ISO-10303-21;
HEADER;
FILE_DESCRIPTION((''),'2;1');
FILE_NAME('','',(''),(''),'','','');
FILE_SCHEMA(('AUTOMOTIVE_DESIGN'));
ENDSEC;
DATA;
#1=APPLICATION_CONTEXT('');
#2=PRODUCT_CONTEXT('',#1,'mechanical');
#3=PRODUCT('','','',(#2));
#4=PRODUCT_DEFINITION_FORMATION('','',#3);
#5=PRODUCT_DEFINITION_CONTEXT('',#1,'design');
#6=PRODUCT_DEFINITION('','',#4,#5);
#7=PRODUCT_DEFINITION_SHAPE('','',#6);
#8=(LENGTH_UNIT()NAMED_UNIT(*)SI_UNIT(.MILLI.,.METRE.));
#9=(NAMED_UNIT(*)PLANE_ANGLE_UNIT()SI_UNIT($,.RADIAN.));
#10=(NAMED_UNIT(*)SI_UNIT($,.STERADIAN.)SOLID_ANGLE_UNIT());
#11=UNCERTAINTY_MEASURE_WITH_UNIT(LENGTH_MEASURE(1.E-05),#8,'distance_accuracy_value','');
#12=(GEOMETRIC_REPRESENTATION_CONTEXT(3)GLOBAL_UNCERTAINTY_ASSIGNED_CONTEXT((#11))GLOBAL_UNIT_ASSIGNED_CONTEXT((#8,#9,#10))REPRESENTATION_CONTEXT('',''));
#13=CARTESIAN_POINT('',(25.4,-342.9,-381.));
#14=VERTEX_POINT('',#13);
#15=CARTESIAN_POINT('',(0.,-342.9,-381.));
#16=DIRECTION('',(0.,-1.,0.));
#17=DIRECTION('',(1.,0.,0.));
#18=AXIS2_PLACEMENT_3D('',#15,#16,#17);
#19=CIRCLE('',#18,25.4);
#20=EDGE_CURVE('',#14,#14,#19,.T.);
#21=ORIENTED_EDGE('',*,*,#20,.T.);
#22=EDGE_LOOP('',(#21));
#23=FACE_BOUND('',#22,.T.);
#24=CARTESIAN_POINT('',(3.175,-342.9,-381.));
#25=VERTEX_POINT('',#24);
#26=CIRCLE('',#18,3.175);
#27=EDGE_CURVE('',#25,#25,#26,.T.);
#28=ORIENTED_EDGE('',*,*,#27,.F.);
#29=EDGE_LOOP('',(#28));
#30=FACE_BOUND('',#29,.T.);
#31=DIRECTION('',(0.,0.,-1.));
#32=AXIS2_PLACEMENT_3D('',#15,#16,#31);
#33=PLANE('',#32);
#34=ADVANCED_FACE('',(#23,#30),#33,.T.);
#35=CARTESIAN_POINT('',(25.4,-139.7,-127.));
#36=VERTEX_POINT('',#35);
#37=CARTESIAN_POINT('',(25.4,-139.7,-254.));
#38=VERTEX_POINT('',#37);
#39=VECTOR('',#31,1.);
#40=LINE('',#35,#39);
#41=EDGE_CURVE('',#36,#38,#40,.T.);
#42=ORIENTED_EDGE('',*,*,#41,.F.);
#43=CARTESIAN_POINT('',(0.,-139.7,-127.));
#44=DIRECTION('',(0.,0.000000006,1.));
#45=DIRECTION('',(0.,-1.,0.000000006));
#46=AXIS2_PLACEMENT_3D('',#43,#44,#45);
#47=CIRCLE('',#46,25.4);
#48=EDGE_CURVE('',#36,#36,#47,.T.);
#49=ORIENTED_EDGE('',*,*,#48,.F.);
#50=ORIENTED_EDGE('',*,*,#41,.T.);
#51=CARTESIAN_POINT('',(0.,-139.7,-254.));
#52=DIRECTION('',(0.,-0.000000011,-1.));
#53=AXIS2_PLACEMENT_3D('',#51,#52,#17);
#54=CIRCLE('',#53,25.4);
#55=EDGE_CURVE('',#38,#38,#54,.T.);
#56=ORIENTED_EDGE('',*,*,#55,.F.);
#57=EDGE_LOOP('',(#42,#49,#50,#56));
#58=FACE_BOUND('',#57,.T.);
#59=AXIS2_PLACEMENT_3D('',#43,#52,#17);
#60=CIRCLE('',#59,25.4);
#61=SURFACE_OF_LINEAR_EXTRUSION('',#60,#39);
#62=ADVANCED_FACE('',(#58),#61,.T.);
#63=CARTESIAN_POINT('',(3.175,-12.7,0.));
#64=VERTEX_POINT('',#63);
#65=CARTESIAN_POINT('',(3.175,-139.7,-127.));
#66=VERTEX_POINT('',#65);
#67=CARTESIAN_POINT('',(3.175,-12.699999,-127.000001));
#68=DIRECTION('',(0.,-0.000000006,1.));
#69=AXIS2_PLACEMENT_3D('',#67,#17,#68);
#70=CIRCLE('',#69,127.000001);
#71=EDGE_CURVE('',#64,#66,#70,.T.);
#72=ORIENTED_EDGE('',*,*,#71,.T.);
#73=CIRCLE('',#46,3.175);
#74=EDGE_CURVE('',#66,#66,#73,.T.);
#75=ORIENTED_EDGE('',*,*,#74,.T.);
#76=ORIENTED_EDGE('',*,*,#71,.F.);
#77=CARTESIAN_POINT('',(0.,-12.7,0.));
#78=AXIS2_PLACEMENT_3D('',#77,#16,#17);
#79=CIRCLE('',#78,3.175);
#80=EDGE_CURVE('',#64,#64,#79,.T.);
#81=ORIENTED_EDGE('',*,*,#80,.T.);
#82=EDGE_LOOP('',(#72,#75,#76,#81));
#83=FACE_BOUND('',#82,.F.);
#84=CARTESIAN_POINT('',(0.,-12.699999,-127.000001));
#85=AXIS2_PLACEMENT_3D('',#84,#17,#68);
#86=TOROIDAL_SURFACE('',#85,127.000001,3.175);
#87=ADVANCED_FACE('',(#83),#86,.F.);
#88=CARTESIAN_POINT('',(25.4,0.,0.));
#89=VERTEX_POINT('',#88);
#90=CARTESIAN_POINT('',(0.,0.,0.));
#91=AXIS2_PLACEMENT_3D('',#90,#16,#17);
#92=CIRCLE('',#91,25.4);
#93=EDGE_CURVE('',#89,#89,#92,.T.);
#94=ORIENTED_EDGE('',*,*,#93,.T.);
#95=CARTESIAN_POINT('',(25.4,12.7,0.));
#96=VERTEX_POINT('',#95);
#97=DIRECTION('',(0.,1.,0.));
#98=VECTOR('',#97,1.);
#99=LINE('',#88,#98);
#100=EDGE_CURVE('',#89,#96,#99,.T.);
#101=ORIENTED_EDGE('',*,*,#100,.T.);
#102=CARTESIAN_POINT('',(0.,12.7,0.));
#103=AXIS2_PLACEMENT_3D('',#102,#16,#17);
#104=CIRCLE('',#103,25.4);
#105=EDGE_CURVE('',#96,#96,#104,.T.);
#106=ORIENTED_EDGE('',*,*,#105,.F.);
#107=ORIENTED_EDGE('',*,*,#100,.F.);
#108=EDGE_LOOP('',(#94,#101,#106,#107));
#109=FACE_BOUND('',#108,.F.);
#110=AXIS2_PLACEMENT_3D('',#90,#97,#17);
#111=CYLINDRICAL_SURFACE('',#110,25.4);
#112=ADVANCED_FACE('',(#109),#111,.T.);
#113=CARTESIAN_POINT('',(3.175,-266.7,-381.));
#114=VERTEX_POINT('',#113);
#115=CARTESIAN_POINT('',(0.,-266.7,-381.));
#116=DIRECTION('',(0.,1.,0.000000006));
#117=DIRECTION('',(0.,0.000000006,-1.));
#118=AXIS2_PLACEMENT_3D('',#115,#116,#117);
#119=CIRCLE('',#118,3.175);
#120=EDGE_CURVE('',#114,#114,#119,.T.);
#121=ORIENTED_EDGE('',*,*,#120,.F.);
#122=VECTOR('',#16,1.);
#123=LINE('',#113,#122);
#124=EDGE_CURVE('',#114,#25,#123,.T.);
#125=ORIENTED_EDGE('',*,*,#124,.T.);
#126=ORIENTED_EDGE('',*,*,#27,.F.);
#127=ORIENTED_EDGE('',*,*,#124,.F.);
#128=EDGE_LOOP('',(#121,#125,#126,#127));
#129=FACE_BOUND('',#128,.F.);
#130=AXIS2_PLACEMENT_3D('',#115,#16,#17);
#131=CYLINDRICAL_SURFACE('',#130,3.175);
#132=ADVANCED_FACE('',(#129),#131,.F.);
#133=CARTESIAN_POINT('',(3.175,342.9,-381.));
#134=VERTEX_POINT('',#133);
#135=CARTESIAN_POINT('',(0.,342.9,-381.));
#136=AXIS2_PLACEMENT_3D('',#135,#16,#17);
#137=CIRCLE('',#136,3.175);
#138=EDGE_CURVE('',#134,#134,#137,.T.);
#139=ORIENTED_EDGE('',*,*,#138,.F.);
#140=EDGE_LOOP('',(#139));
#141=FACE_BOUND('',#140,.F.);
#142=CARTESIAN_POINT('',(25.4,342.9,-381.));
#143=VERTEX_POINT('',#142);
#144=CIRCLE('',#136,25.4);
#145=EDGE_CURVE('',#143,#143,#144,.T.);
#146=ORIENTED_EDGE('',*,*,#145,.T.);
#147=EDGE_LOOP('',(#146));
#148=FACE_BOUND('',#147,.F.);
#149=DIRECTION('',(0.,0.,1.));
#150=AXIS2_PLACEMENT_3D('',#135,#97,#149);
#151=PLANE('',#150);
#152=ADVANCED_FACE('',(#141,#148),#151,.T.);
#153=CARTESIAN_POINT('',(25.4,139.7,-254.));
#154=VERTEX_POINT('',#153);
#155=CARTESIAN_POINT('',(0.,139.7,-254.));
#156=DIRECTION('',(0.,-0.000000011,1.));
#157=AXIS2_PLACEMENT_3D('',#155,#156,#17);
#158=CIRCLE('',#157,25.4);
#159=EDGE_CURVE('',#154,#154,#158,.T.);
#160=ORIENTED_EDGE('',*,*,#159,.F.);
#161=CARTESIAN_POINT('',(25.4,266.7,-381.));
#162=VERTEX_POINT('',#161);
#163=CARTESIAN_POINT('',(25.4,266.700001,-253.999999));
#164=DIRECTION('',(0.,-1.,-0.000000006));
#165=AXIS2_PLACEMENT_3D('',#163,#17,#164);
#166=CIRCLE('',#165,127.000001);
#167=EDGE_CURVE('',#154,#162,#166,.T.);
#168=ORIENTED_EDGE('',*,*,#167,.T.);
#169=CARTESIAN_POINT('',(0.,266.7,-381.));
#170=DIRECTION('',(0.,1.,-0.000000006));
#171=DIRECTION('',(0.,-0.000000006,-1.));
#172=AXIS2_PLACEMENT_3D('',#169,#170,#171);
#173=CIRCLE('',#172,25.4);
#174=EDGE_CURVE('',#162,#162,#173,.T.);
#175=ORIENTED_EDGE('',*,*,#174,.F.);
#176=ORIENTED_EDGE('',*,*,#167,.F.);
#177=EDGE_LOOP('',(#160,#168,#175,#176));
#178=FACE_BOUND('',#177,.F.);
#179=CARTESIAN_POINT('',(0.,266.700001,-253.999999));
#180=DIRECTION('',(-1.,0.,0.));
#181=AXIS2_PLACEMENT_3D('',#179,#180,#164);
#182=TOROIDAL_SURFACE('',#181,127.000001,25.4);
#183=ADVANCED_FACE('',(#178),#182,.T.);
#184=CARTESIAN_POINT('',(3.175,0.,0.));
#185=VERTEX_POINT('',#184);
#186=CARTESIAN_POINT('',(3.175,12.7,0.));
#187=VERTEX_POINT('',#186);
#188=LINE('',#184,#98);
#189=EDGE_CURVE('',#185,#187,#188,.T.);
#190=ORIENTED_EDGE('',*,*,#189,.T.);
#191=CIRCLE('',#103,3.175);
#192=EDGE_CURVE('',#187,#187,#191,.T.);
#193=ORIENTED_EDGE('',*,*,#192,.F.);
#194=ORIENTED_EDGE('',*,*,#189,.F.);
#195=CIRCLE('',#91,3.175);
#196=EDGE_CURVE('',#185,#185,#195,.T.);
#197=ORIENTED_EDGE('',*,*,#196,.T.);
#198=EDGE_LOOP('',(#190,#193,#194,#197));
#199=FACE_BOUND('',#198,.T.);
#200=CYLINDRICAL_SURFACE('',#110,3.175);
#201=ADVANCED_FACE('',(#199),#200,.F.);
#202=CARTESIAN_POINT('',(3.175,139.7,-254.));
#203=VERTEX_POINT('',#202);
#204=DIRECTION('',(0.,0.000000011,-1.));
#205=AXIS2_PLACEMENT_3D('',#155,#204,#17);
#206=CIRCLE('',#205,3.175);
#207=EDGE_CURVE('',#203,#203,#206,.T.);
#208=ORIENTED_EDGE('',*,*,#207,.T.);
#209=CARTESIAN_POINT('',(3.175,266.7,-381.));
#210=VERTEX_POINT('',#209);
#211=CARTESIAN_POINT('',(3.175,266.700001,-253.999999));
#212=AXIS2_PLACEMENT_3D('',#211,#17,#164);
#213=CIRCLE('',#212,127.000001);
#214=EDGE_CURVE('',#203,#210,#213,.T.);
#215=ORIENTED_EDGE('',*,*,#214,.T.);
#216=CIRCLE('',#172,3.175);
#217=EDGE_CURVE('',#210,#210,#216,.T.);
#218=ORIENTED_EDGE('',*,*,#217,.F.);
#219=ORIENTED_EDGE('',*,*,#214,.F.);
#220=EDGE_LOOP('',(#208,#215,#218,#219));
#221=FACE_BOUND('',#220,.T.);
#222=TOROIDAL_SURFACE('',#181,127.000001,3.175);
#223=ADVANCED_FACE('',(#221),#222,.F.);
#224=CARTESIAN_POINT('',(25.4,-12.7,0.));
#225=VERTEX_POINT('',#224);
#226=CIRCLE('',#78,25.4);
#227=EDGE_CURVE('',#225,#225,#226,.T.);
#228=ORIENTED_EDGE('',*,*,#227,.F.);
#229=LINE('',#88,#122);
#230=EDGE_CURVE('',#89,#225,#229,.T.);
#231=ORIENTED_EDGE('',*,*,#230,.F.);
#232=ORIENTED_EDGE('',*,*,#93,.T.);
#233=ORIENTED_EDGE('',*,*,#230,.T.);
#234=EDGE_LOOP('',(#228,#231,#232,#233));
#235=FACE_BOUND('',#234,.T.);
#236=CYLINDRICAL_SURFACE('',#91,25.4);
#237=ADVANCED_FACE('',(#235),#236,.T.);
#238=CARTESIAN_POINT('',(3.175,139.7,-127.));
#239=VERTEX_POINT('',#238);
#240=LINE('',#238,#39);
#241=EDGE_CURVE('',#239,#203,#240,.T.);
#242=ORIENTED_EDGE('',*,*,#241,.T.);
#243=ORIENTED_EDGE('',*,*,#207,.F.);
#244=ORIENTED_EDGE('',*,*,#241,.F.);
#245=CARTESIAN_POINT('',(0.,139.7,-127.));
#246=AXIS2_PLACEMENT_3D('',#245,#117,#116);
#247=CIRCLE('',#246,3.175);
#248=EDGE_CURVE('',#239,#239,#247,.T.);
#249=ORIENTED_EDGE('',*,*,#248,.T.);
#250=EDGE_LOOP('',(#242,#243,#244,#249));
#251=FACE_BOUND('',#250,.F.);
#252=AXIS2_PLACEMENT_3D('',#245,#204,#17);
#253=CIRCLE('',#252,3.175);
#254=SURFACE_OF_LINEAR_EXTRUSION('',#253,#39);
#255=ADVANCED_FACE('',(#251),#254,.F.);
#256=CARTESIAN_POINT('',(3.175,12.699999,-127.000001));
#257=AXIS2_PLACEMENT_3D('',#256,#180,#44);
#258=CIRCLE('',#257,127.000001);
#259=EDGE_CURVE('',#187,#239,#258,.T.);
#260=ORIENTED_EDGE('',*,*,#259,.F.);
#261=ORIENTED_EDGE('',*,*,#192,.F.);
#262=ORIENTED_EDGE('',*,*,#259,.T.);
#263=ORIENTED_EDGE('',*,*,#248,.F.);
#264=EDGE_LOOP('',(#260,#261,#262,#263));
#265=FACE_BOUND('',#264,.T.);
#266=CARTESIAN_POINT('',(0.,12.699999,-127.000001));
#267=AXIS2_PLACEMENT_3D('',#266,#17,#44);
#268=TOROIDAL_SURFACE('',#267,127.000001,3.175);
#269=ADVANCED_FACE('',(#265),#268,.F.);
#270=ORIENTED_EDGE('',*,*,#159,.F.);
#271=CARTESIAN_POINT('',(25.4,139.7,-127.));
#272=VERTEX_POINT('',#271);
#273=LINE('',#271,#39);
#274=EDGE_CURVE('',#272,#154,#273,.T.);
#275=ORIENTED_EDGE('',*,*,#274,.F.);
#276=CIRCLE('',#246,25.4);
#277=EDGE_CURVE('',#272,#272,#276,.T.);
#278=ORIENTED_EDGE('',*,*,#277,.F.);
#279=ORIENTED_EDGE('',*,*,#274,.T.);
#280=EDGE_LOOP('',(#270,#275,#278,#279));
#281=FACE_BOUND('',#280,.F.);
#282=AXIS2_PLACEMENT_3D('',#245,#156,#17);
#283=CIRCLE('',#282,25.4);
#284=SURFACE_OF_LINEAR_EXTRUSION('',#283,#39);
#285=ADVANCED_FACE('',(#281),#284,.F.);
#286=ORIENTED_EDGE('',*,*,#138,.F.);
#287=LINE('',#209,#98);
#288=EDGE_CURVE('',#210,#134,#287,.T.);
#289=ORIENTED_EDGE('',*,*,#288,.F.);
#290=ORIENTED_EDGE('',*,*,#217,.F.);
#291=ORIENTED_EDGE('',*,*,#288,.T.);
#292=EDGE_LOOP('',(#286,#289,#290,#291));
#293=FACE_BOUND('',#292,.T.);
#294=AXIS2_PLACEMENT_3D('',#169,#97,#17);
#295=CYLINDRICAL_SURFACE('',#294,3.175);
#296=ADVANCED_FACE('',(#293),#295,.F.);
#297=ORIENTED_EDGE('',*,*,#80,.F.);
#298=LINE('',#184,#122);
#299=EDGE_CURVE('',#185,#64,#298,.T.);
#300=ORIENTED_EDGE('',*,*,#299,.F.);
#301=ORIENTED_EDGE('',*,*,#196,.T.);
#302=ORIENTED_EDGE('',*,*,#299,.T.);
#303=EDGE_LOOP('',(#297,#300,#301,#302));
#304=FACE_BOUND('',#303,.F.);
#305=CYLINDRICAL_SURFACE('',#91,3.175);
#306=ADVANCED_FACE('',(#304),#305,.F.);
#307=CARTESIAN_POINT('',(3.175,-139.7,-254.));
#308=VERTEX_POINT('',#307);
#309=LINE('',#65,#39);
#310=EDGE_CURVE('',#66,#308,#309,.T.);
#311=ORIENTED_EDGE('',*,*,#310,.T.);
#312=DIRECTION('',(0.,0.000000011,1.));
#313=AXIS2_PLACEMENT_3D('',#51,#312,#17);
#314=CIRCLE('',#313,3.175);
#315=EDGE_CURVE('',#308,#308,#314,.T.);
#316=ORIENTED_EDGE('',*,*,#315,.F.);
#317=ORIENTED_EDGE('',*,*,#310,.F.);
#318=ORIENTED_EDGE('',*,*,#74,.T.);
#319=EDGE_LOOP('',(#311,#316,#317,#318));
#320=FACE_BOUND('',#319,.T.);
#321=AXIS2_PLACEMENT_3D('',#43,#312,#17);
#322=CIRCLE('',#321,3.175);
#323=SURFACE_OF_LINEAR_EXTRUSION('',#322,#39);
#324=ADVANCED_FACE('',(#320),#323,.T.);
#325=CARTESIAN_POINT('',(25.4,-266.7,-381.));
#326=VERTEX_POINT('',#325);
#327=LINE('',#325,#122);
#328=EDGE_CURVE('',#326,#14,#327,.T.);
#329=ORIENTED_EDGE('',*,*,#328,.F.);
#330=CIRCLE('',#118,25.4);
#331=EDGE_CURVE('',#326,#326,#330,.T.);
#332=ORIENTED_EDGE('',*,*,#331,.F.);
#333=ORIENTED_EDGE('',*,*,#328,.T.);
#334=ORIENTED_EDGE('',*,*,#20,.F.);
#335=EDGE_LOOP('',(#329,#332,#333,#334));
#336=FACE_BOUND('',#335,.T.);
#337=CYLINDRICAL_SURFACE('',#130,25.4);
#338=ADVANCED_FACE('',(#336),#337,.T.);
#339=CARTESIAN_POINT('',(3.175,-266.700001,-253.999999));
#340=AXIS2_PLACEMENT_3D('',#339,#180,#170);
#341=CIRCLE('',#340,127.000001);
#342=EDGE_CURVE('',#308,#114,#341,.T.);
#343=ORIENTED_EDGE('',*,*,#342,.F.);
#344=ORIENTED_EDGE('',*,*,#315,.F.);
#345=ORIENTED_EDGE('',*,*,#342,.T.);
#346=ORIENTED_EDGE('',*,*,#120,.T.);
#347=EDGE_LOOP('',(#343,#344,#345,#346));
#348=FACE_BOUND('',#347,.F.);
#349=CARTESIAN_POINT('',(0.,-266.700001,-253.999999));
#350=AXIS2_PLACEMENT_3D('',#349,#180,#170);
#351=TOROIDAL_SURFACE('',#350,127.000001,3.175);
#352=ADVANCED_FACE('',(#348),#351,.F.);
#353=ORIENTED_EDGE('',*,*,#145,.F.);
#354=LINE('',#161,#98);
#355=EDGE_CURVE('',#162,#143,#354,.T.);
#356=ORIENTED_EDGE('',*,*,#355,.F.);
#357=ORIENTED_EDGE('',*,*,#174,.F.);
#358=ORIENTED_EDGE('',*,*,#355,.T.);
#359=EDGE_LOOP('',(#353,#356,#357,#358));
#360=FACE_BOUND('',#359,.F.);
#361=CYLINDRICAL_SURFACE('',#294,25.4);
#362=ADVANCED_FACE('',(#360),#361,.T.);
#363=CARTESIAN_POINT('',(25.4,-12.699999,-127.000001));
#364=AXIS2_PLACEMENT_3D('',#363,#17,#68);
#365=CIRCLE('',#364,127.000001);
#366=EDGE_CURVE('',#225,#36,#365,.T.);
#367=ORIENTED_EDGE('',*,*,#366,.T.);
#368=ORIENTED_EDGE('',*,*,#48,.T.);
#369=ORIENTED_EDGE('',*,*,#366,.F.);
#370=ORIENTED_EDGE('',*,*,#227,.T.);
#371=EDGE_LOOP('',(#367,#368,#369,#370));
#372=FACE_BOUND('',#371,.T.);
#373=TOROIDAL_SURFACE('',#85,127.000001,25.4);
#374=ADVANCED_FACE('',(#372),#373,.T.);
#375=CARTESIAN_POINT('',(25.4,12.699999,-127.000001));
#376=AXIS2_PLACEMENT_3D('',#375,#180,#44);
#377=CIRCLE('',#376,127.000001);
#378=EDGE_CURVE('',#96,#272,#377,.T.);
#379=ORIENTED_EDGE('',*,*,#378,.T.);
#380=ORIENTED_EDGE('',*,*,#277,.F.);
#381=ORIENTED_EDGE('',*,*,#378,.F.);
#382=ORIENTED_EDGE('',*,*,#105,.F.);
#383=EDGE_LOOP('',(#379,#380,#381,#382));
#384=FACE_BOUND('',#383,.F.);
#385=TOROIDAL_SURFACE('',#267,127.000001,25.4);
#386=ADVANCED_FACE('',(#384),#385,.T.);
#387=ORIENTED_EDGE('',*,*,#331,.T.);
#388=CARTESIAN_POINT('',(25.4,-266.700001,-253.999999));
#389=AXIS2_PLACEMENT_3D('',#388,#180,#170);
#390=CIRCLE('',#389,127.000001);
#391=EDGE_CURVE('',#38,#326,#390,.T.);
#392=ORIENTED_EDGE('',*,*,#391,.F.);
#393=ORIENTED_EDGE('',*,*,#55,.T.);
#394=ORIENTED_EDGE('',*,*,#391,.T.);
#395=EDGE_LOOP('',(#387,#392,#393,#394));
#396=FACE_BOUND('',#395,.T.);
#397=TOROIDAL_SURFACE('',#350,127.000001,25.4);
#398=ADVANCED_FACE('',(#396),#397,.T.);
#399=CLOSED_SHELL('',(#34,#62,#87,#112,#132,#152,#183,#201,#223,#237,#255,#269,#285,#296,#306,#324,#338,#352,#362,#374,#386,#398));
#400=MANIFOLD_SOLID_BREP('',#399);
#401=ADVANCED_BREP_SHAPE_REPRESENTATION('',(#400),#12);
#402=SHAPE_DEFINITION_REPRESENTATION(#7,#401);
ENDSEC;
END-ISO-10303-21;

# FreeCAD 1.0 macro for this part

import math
import FreeCAD as App
import Part
import Sketcher
from FreeCAD import Vector
Q = App.Units.Quantity

doc = App.newDocument("Part")
body = doc.addObject("PartDesign::Body", "Body")

sketch1 = body.newObject("Sketcher::SketchObject", "Sketch")
sketch1.AttachmentSupport = (doc.getObject("XZ_Plane"), [""])
sketch1.MapMode = "FlatFace"
sketch1.addGeometry([
    Part.Circle(Vector(0, 0, 0), Vector(0, 0, 1), 25.4),
    Part.Circle(Vector(0, 0, 0), Vector(0, 0, 1), 3.2),
], False)
sketch1.addConstraint([
    Sketcher.Constraint("Coincident", 0, 3, -1, 1),
    Sketcher.Constraint("Coincident", 1, 3, -1, 1),
    Sketcher.Constraint("Diameter", 0, Q("2 in")),
    Sketcher.Constraint("Diameter", 1, Q("0.25 in")),
])

sketch2 = body.newObject("Sketcher::SketchObject", "Sketch001")
sketch2.AttachmentSupport = (doc.getObject("YZ_Plane"), [""])
sketch2.MapMode = "FlatFace"
sketch2.addGeometry([
    Part.LineSegment(Vector(0, 0, 0), Vector(-13, 0, 0)),
    Part.ArcOfCircle(Part.Circle(Vector(-13, -127, 0), Vector(0, 0, 1), 127), math.radians(90), math.radians(180)),
    Part.LineSegment(Vector(-140, -127, 0), Vector(-140, -254, 0)),
    Part.ArcOfCircle(Part.Circle(Vector(-267, -254, 0), Vector(0, 0, 1), 127), math.radians(-90), math.radians(0)),
    Part.LineSegment(Vector(-267, -381, 0), Vector(-343, -381, 0)),
], False)
sketch2.addConstraint([
    Sketcher.Constraint("Tangent", 0, 2, 1, 1),
    Sketcher.Constraint("Tangent", 1, 2, 2, 1),
    Sketcher.Constraint("Tangent", 2, 2, 3, 2),
    Sketcher.Constraint("Tangent", 3, 1, 4, 1),
    Sketcher.Constraint("Horizontal", 0),
    Sketcher.Constraint("Vertical", 2),
    Sketcher.Constraint("Horizontal", 4),
    Sketcher.Constraint("Coincident", 0, 1, -1, 1),
    Sketcher.Constraint("Equal", 1, 3),
    Sketcher.Constraint("Radius", 1, Q("5 in")),
    Sketcher.Constraint("DistanceX", 4, 2, 4, 1, Q("3 in")),
    Sketcher.Constraint("DistanceY", 2, 2, 2, 1, Q("5 in")),
    Sketcher.Constraint("DistanceX", 0, 2, 0, 1, Q("0.5 in")),
])
doc.recompute()

additivepipe = body.newObject("PartDesign::AdditivePipe", "AdditivePipe")
additivepipe.Profile = sketch1
additivepipe.Spine = (sketch2, ["Edge1", "Edge2", "Edge3", "Edge4", "Edge5"])
body2 = doc.addObject("PartDesign::Body", "Body001")
doc.recompute()

body2.BaseFeature = body
doc.recompute()

mirroring = doc.addObject("Part::Mirroring", "Mirroring")
mirroring.Source = body
mirroring.Base = Vector(0, 0, 0)
mirroring.Normal = Vector(0, 1, 0)
body3 = doc.addObject("PartDesign::Body", "Body002")
body3.BaseFeature = mirroring
boolean = body2.newObject("PartDesign::Boolean", "Boolean")
boolean.Type = "Fuse"
boolean.addObjects([body3])
doc.recompute()
mirroring.Visibility = False

doc.recompute()
